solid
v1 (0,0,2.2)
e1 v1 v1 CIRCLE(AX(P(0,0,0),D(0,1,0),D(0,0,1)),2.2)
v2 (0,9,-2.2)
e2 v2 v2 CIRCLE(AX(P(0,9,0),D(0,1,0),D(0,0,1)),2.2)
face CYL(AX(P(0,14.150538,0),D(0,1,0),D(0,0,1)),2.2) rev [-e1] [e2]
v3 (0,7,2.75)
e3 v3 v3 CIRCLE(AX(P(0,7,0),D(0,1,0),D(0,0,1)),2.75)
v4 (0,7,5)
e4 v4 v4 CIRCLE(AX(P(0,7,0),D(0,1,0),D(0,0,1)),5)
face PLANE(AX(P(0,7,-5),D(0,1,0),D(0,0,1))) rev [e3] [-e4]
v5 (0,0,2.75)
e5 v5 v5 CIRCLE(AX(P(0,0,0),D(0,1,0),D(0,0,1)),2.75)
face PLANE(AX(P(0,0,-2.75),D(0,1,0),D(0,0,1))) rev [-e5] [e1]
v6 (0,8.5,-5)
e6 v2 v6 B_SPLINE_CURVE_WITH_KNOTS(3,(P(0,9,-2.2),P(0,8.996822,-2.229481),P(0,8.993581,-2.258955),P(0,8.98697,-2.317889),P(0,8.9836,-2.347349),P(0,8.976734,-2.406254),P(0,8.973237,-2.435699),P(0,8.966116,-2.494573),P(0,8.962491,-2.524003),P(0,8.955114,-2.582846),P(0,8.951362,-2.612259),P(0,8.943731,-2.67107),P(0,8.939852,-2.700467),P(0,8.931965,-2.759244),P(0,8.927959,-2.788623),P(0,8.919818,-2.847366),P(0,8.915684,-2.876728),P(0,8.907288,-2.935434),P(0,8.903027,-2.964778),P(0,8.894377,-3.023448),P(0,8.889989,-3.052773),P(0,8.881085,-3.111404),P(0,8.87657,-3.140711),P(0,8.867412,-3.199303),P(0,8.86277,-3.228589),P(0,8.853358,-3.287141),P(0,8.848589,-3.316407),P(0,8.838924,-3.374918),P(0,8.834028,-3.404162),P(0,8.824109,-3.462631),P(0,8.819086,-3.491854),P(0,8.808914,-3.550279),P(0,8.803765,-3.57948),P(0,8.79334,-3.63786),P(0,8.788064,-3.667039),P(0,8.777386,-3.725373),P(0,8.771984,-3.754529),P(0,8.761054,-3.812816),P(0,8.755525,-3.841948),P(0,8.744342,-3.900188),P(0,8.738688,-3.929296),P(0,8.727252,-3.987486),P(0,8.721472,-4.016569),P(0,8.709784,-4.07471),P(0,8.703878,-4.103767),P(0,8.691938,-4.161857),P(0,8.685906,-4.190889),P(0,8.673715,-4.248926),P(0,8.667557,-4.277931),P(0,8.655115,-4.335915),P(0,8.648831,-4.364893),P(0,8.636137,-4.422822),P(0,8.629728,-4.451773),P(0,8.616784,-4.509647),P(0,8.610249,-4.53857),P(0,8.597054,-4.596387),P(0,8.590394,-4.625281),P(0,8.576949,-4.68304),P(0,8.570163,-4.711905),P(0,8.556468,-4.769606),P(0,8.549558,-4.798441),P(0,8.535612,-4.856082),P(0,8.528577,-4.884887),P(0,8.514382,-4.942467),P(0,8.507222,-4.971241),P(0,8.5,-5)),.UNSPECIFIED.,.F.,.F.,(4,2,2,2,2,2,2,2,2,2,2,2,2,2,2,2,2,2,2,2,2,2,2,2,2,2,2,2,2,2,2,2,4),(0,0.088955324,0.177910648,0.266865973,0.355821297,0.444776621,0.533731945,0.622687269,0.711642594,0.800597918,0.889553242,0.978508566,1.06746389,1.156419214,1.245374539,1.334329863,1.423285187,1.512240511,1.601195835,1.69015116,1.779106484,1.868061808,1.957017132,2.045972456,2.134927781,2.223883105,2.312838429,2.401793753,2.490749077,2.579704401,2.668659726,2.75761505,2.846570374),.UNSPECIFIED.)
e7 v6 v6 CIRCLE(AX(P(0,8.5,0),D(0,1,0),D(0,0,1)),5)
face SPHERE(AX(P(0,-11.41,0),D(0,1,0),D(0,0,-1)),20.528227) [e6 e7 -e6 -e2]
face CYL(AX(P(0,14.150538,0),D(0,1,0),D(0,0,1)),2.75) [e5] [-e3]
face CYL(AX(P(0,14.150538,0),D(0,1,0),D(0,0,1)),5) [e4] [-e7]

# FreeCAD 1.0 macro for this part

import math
import FreeCAD as App
import Part
import Sketcher

doc = App.newDocument("Part")
params = doc.addObject("Spreadsheet::Sheet", "Params")
for row, (alias, value) in enumerate([
    ("sketch1_width", "9 mm"),
    ("sketch1_width2", "7 mm"),
    ("sketch1_width3", "1.5 mm"),
    ("sketch1_height", "0.55 mm"),
    ("sketch1_height2", "2.25 mm"),
    ("revolution_angle", "360 deg"),
], start=1):
    params.set(f"A{row}", alias)
    params.set(f"B{row}", "=" + value)
    params.setAlias(f"B{row}", alias)

body = doc.addObject("PartDesign::Body", "Body")

# Sketch on YZ plane
sketch1 = body.newObject("Sketcher::SketchObject", "Sketch")
sketch1.AttachmentSupport = (doc.getObject("YZ_Plane"), [""])
sketch1.MapMode = "FlatFace"
sketch1.addGeometry([
    Part.LineSegment(App.Vector(9, -2.2, 0), App.Vector(0, -2.2, 0)),  # 0
    Part.LineSegment(App.Vector(0, -2.2, 0), App.Vector(0, -2.8, 0)),  # 1
    Part.LineSegment(App.Vector(0, -2.8, 0), App.Vector(7, -2.8, 0)),  # 2
    Part.LineSegment(App.Vector(7, -2.8, 0), App.Vector(7, -5, 0)),  # 3
    Part.LineSegment(App.Vector(7, -5, 0), App.Vector(8.5, -5, 0)),  # 4
    Part.ArcOfCircle(Part.Circle(App.Vector(-11.4, 0, 0), App.Vector(0, 0, 1), 20.5), math.radians(-14.1), math.radians(-6.15)),  # 5
], False)
sketch1.addConstraint([
    Sketcher.Constraint("Coincident", 0, 2, 1, 1),
    Sketcher.Constraint("Coincident", 1, 2, 2, 1),
    Sketcher.Constraint("Coincident", 2, 2, 3, 1),
    Sketcher.Constraint("Coincident", 3, 2, 4, 1),
    Sketcher.Constraint("Coincident", 4, 2, 5, 1),
    Sketcher.Constraint("Coincident", 5, 2, 0, 1),
    Sketcher.Constraint("Horizontal", 0),
    Sketcher.Constraint("Vertical", 1),
    Sketcher.Constraint("Horizontal", 2),
    Sketcher.Constraint("Vertical", 3),
    Sketcher.Constraint("Horizontal", 4),
    Sketcher.Constraint("PointOnObject", 5, 3, -1),
    Sketcher.Constraint("PointOnObject", 0, 2, -2),
    Sketcher.Constraint("DistanceX", 0, 2, 0, 1, 9.0),
    Sketcher.Constraint("DistanceX", 2, 1, 2, 2, 7.0),
    Sketcher.Constraint("DistanceX", 4, 1, 4, 2, 1.5),
    Sketcher.Constraint("DistanceY", 3, 2, -1, 1, 5.0),
    Sketcher.Constraint("DistanceY", 1, 2, 1, 1, 0.55),
    Sketcher.Constraint("DistanceY", 3, 2, 3, 1, 2.25),
])
sketch1.setExpression("Constraints[13]", "Params.sketch1_width")
sketch1.setExpression("Constraints[14]", "Params.sketch1_width2")
sketch1.setExpression("Constraints[15]", "Params.sketch1_width3")
sketch1.setExpression("Constraints[17]", "Params.sketch1_height")
sketch1.setExpression("Constraints[18]", "Params.sketch1_height2")
revolution = body.newObject("PartDesign::Revolution", "Revolution")
revolution.Profile = sketch1
revolution.ReferenceAxis = (sketch1, ["H_Axis"])
revolution.setExpression("Angle", "Params.revolution_angle")

doc.recompute()
